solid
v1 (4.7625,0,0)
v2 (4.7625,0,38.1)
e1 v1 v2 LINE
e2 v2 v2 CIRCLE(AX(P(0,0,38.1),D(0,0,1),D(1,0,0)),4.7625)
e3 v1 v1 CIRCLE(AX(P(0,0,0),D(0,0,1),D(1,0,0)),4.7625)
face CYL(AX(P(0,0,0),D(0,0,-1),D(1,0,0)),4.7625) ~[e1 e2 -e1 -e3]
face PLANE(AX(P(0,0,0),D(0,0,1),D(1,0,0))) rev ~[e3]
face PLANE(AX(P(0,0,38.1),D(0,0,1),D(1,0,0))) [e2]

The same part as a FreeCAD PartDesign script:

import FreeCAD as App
import Part
import Sketcher

V = App.Vector
Q = App.Units.Quantity

doc = App.newDocument("Part")
body = doc.addObject("PartDesign::Body", "Body")

sketch1 = body.newObject("Sketcher::SketchObject", "Sketch")
sketch1.AttachmentSupport = (doc.getObject("XY_Plane"), [""])
sketch1.MapMode = "FlatFace"
sketch1.addGeometry(Part.Circle(V(0, 0, 0), V(0, 0, 1), 4.8), False)
sketch1.addConstraint([
    Sketcher.Constraint("Coincident", 0, 3, -1, 1),
    Sketcher.Constraint("Diameter", 0, Q("0.375 in")),
])
pad1 = body.newObject("PartDesign::Pad", "Pad")
pad1.Profile = sketch1
pad1.Length = Q("1.5 in")

doc.recompute()
